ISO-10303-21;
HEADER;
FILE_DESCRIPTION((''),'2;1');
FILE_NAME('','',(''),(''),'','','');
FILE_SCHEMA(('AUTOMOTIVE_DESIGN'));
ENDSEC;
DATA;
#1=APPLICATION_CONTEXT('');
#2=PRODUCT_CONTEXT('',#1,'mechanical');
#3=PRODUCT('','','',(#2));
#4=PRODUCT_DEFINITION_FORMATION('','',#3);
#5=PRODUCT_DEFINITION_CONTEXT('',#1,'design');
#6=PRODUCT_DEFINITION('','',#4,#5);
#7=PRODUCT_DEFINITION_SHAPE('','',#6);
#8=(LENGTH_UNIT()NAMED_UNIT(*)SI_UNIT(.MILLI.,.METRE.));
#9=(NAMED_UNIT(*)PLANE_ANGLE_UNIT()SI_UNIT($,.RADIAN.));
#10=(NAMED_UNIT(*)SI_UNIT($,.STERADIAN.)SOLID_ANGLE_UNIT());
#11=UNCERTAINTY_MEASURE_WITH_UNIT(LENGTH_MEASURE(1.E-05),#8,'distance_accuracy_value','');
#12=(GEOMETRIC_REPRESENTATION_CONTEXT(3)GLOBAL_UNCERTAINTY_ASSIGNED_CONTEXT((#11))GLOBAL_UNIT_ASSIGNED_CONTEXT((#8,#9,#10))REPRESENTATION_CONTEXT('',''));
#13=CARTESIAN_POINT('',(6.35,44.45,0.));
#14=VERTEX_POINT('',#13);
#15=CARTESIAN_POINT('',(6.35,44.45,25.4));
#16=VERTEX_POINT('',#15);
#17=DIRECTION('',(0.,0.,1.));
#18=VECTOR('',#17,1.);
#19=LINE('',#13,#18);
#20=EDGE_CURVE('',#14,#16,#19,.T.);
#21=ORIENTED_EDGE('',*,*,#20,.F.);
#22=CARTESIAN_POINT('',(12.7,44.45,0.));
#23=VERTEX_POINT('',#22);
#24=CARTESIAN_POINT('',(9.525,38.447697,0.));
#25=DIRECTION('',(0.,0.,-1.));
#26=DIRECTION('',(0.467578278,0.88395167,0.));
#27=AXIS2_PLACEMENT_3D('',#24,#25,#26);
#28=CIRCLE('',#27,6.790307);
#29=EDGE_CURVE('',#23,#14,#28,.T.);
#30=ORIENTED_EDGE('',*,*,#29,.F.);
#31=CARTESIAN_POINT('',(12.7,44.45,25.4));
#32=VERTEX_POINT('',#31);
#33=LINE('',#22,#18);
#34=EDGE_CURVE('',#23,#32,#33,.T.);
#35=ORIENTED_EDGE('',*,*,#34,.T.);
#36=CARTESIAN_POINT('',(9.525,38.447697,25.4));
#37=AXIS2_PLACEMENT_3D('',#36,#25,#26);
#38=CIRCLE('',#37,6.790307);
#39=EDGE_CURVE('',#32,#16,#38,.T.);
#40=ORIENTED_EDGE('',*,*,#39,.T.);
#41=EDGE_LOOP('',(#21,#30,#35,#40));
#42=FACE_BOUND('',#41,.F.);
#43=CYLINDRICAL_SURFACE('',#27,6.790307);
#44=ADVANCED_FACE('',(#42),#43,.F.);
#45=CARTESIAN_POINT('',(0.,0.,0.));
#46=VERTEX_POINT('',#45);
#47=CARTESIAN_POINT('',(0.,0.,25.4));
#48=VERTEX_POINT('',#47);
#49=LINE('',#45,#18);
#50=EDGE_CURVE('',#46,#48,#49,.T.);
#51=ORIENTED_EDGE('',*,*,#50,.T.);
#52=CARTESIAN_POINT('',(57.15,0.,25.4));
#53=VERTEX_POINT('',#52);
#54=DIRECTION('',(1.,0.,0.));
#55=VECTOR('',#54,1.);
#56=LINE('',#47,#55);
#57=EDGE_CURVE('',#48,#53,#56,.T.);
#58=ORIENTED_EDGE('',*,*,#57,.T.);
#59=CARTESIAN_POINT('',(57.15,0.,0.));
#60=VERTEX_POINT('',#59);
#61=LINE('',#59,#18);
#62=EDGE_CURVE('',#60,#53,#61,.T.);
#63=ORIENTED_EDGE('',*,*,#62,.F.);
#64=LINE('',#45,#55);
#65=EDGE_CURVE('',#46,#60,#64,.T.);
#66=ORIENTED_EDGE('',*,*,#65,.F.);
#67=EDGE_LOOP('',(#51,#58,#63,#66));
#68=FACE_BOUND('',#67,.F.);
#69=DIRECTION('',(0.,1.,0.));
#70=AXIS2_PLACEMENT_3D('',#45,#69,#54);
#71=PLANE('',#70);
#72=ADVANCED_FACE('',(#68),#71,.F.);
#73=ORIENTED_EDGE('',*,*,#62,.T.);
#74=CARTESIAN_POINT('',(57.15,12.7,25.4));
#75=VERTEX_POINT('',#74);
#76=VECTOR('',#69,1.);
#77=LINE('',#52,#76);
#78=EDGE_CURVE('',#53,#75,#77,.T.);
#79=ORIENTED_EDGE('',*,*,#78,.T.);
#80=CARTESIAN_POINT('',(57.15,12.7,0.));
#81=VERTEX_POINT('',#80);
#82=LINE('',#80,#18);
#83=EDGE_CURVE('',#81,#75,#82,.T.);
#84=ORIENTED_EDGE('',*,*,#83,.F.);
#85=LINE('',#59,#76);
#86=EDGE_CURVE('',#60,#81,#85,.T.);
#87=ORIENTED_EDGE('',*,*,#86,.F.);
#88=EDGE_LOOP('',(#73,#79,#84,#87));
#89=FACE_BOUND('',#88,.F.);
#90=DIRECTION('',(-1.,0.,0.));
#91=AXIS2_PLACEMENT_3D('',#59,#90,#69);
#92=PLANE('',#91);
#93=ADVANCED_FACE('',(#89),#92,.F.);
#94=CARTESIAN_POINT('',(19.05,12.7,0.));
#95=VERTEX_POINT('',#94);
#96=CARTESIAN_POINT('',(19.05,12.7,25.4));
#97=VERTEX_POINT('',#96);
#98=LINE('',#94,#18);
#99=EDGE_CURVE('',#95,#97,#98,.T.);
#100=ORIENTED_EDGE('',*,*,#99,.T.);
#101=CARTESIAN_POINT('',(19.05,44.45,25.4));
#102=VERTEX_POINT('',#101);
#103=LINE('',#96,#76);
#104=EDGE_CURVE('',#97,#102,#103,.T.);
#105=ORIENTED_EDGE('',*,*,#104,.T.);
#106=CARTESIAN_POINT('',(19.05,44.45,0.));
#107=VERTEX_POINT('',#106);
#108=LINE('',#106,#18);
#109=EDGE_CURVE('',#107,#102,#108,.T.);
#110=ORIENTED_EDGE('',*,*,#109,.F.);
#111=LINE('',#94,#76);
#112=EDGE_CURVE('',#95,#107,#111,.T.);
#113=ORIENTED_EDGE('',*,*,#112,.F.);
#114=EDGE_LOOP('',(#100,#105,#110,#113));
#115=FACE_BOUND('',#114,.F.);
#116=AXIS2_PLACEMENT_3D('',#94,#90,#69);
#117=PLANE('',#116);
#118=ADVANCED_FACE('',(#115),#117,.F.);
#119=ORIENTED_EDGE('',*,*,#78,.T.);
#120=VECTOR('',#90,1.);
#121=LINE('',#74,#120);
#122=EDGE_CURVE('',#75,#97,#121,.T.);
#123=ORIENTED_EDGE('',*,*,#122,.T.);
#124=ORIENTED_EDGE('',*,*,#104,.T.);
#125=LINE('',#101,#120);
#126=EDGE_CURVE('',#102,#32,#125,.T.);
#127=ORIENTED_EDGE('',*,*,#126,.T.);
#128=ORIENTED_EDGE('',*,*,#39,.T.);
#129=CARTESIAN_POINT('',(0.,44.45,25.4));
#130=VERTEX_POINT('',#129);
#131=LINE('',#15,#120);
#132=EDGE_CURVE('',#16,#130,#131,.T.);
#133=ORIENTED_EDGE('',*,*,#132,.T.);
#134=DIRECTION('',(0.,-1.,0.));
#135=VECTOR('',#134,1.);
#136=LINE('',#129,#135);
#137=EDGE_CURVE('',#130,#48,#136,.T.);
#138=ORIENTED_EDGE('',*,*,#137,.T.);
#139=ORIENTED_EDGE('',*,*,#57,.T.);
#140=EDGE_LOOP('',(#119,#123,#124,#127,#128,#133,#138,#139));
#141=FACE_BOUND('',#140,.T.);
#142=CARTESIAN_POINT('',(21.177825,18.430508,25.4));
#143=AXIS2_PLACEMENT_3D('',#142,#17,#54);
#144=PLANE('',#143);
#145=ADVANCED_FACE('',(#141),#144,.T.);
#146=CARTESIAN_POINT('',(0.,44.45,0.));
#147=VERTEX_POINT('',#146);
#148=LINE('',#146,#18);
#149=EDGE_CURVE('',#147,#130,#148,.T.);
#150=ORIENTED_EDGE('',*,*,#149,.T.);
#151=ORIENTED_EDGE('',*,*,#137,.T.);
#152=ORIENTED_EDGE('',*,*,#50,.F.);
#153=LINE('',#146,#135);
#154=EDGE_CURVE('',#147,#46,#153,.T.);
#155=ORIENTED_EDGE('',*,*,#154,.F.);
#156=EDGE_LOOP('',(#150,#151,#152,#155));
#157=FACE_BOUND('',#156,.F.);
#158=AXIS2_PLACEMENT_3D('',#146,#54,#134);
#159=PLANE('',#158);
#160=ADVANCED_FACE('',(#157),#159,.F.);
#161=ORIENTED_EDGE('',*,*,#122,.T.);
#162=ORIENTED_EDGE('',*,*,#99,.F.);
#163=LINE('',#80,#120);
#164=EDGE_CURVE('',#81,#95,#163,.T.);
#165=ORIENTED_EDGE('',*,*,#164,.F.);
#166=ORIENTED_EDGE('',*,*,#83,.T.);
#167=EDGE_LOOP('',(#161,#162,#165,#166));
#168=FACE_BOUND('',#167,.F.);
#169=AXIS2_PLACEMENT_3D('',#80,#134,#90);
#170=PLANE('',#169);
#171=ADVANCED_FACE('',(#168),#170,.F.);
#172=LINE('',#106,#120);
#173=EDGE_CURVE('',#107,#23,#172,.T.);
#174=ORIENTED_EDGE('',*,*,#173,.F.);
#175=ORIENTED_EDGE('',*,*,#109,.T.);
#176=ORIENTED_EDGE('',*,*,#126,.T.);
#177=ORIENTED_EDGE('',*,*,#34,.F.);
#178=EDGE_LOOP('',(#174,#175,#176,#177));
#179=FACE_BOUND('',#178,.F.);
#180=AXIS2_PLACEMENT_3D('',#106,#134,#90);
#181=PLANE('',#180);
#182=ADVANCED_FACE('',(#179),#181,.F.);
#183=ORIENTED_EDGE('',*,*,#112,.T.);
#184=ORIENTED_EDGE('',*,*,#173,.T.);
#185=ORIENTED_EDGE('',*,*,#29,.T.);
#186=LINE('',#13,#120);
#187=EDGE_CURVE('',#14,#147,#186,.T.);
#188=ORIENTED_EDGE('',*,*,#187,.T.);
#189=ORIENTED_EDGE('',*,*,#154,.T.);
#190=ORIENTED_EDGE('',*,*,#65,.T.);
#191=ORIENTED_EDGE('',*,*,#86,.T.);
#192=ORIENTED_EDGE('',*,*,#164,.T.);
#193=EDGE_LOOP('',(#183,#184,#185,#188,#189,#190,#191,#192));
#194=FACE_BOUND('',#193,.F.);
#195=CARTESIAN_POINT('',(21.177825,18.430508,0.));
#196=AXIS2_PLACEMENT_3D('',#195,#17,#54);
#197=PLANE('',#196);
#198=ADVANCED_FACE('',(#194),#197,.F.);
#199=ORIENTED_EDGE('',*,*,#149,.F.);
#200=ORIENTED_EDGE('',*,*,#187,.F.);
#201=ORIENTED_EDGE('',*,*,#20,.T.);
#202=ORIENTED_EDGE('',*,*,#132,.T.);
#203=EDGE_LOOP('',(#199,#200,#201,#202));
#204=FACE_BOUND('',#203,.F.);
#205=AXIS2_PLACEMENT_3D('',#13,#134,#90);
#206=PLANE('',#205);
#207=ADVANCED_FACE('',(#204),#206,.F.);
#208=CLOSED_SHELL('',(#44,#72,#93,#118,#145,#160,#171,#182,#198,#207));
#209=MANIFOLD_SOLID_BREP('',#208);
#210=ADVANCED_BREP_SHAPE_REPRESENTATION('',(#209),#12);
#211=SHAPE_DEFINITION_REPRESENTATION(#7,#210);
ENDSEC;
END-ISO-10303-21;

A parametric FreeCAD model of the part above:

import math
import FreeCAD as App
import Part
import Sketcher
Q = App.Units.Quantity

doc = App.newDocument("Part")
params = doc.addObject("Spreadsheet::Sheet", "Params")
for row, (alias, value) in enumerate([
    ("sketch1_width", "1.5 in"),
    ("sketch1_height", "0.5 in"),
    ("sketch1_width2", "2.25 in"),
    ("sketch1_width3", "0.25 in"),
    ("sketch1_height2", "1.75 in"),
    ("pad1_length", "1 in"),
], start=1):
    params.set(f"A{row}", alias)
    params.set(f"B{row}", "=" + value)
    params.setAlias(f"B{row}", alias)

body = doc.addObject("PartDesign::Body", "Body")

sketch1 = doc.addObject("Sketcher::SketchObject", "Sketch")
body.addObject(sketch1)
sketch1.AttachmentSupport = (doc.XY_Plane, [""])
sketch1.MapMode = "FlatFace"
sketch1.addGeometry([
    Part.LineSegment(App.Vector(0, 44, 0), App.Vector(0, 0, 0)),
    Part.LineSegment(App.Vector(0, 0, 0), App.Vector(57, 0, 0)),
    Part.LineSegment(App.Vector(57, 0, 0), App.Vector(57, 13, 0)),
    Part.LineSegment(App.Vector(57, 13, 0), App.Vector(19, 13, 0)),
    Part.LineSegment(App.Vector(19, 13, 0), App.Vector(19, 44, 0)),
    Part.LineSegment(App.Vector(19, 44, 0), App.Vector(13, 44, 0)),
    Part.ArcOfCircle(Part.Circle(App.Vector(10, 38, 0), App.Vector(0, 0, 1), 7), math.radians(118), math.radians(422)),
    Part.LineSegment(App.Vector(6, 44, 0), App.Vector(0, 44, 0)),
], False)
sketch1.addConstraint([
    Sketcher.Constraint("Coincident", 0, 2, 1, 1),
    Sketcher.Constraint("Coincident", 1, 2, 2, 1),
    Sketcher.Constraint("Coincident", 2, 2, 3, 1),
    Sketcher.Constraint("Coincident", 3, 2, 4, 1),
    Sketcher.Constraint("Coincident", 4, 2, 5, 1),
    Sketcher.Constraint("Coincident", 5, 2, 6, 2),
    Sketcher.Constraint("Coincident", 6, 1, 7, 1),
    Sketcher.Constraint("Coincident", 7, 2, 0, 1),
    Sketcher.Constraint("Vertical", 0),
    Sketcher.Constraint("Horizontal", 1),
    Sketcher.Constraint("Vertical", 2),
    Sketcher.Constraint("Horizontal", 3),
    Sketcher.Constraint("Vertical", 4),
    Sketcher.Constraint("Horizontal", 5),
    Sketcher.Constraint("Horizontal", 7),
    Sketcher.Constraint("Coincident", 0, 2, -1, 1),
    Sketcher.Constraint("Horizontal", 5, 2, 6, 1),
    Sketcher.Constraint("Equal", 5, 7),
    Sketcher.Constraint("DistanceX", 3, 2, 3, 1, Q("1.5 in")),
    Sketcher.Constraint("DistanceY", 2, 1, 2, 2, Q("0.5 in")),
    Sketcher.Constraint("DistanceX", 1, 1, 1, 2, Q("2.25 in")),
    Sketcher.Constraint("DistanceX", 5, 2, 5, 1, Q("0.25 in")),
    Sketcher.Constraint("DistanceY", 0, 2, 0, 1, Q("1.75 in")),
    Sketcher.Constraint("Radius", 6, Q("6.790307 mm")),
])
sketch1.setExpression("Constraints[18]", "Params.sketch1_width")
sketch1.setExpression("Constraints[19]", "Params.sketch1_height")
sketch1.setExpression("Constraints[20]", "Params.sketch1_width2")
sketch1.setExpression("Constraints[21]", "Params.sketch1_width3")
sketch1.setExpression("Constraints[22]", "Params.sketch1_height2")
pad1 = doc.addObject("PartDesign::Pad", "Pad")
body.addObject(pad1)
pad1.Profile = sketch1
pad1.setExpression("Length", "Params.pad1_length")

doc.recompute()
